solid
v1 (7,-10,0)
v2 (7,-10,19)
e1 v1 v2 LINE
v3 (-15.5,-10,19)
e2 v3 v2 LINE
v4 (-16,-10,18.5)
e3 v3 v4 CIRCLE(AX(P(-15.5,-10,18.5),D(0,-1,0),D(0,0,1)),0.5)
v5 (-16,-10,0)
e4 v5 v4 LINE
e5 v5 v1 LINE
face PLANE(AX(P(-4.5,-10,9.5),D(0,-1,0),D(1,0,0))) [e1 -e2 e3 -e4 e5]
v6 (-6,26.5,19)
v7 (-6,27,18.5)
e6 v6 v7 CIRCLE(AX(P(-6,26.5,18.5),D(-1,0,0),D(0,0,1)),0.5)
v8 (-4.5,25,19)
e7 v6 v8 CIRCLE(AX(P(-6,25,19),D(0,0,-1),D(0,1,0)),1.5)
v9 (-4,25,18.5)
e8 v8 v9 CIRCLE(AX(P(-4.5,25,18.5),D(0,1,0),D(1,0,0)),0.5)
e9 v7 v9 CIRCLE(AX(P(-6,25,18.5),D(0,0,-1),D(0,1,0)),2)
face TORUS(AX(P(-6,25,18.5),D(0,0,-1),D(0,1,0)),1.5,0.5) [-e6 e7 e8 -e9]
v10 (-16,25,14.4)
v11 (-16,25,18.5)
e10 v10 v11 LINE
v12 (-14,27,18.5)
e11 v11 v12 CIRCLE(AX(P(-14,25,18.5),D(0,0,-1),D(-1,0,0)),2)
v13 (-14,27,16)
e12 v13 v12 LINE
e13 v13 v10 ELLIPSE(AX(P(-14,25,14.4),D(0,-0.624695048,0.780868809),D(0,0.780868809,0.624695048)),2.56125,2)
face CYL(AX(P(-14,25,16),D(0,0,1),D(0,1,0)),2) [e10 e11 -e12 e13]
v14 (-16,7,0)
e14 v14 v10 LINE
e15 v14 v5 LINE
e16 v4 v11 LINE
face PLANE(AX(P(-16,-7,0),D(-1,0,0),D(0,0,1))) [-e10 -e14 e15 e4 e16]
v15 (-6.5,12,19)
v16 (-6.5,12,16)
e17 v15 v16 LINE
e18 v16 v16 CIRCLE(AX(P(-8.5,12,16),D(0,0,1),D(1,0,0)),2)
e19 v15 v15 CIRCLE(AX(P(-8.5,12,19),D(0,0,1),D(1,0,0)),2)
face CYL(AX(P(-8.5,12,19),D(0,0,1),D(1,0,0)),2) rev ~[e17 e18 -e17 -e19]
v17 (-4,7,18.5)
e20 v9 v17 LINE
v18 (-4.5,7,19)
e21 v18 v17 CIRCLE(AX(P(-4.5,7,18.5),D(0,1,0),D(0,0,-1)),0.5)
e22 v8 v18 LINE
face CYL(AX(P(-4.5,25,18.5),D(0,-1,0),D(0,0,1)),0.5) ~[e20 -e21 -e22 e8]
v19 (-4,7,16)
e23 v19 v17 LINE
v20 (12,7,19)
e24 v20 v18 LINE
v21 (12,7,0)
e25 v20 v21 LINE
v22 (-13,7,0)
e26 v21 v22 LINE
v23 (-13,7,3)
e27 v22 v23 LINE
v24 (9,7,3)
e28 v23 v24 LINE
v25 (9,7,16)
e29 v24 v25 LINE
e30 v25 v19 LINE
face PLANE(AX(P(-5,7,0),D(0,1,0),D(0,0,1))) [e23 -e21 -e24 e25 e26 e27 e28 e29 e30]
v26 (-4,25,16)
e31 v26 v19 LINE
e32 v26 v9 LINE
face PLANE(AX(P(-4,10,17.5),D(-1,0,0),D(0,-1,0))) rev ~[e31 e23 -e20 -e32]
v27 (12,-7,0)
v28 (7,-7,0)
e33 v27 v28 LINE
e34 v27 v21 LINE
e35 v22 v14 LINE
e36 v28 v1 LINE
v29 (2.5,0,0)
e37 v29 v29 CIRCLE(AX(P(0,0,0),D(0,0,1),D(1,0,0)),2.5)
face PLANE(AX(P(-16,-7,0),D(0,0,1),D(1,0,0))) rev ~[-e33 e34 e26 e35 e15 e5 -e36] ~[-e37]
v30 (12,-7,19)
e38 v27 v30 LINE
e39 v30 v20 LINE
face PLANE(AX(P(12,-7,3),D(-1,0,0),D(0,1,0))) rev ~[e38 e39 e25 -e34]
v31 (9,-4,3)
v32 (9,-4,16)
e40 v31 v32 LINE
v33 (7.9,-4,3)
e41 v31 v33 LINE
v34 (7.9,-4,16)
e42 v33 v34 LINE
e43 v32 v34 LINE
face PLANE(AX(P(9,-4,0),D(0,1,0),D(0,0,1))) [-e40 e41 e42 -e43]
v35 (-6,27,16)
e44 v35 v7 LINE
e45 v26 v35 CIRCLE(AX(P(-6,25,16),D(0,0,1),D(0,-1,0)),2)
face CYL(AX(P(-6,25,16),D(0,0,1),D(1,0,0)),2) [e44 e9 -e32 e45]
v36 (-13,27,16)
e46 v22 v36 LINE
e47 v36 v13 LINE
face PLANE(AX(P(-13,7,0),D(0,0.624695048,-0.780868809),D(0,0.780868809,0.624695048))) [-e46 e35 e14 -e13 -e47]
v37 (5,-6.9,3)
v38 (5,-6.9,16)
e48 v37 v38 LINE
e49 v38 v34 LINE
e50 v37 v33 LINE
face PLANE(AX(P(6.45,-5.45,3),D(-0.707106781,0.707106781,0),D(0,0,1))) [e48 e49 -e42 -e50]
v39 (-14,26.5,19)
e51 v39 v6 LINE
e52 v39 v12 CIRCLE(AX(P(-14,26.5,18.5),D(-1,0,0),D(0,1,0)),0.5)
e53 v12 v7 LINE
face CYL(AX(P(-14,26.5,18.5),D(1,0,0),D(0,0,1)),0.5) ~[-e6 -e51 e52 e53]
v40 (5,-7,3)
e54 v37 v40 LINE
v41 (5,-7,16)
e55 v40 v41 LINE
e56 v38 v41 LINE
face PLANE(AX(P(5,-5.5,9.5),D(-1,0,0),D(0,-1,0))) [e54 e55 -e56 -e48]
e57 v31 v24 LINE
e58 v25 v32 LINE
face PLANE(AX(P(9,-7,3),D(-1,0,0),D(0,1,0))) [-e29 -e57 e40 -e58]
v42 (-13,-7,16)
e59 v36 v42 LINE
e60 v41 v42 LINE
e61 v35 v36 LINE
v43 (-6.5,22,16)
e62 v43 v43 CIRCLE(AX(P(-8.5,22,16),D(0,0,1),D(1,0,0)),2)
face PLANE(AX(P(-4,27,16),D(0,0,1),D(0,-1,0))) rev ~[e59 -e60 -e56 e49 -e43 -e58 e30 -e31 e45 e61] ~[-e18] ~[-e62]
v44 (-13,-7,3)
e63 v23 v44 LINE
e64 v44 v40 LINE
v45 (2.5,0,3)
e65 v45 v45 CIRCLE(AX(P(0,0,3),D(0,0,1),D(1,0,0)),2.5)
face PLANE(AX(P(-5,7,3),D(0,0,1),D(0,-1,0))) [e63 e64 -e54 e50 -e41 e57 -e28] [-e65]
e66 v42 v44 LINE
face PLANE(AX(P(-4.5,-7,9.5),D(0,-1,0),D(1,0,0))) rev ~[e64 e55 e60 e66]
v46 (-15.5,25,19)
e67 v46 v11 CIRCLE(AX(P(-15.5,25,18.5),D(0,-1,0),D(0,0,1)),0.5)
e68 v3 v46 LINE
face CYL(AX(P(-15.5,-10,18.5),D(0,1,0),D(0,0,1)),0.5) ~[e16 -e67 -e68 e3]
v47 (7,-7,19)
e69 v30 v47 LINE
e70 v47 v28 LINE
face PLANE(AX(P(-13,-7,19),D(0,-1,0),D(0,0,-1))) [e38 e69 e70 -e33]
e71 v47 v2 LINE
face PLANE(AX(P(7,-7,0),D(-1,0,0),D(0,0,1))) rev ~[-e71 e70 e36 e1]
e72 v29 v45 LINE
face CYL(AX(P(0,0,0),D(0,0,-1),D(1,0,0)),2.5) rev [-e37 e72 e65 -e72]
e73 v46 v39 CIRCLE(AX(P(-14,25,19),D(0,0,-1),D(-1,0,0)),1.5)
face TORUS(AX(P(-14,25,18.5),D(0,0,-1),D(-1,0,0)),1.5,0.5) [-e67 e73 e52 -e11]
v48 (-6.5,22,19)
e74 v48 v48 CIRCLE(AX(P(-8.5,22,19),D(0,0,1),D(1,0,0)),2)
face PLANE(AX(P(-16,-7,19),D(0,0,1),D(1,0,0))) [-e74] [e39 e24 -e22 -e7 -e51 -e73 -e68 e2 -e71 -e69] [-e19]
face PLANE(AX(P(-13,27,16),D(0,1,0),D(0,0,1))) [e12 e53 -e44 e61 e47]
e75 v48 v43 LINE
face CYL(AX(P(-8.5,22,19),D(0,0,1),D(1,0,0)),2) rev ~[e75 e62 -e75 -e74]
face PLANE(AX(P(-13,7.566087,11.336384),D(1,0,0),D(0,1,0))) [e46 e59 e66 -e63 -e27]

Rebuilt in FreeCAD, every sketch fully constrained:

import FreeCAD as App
import Part
import Sketcher


def edges_at(feature, points):
    """Names of the edges that pass closest to the given points."""
    edges = feature.Shape.Edges
    near = lambda p: min(range(len(edges)), key=lambda i: edges[i].distToShape(Part.Vertex(*p))[0])
    return sorted({f"Edge{near(p) + 1}" for p in points})


def add_polygon(sketch, points):
    """Adds a closed chain of lines whose ends are joined by coincident constraints."""
    first, n = sketch.GeometryCount, len(points)
    for a, b in zip(points, points[1:] + points[:1]):
        sketch.addGeometry(Part.LineSegment(App.Vector(*a, 0), App.Vector(*b, 0)), False)
    for i in range(n):
        sketch.addConstraint(Sketcher.Constraint("Coincident", first + i, 2, first + (i + 1) % n, 1))

doc = App.newDocument("Part")
params = doc.addObject("Spreadsheet::Sheet", "Params")
for row, (alias, value) in enumerate([
    ("sketch1_diameter", "5 mm"),
    ("sketch1_width", "17 mm"),
    ("sketch1_height", "14 mm"),
    ("pad1_length", "3 mm"),
    ("sketch2_width", "3 mm"),
    ("sketch2_height", "14 mm"),
    ("pad2_length", "16 mm"),
    ("sketch3_width", "14 mm"),
    ("sketch3_height", "3 mm"),
    ("pad3_length", "13 mm"),
    ("sketch4_width", "34 mm"),
    ("sketch4_height", "3 mm"),
    ("pad4_length", "9 mm"),
    ("sketch5_width", "14 mm"),
    ("sketch5_height", "3 mm"),
    ("pad5_length", "8 mm"),
    ("sketch6_diameter", "4 mm"),
    ("sketch7_width", "34 mm"),
    ("sketch7_width2", "14 mm"),
    ("sketch7_height", "3 mm"),
    ("sketch7_height2", "19 mm"),
    ("pad6_length", "3 mm"),
    ("sketch8_width", "23 mm"),
    ("sketch8_height", "19 mm"),
    ("pad7_length", "3 mm"),
    ("sketch9_width", "3 mm"),
    ("sketch9_height", "19 mm"),
    ("pad8_length", "4 mm"),
    ("chamfer_size", "2.9 mm"),
    ("fillet_radius", "2 mm"),
    ("fillet2_radius", "2 mm"),
    ("fillet3_radius", "0.5 mm"),
], start=1):
    params.set(f"A{row}", alias)
    params.set(f"B{row}", "=" + value)
    params.setAlias(f"B{row}", alias)

body = doc.addObject("PartDesign::Body", "Body")

# Sketch on XY plane
sketch1 = doc.addObject("Sketcher::SketchObject", "Sketch")
body.addObject(sketch1)
sketch1.AttachmentSupport = (doc.XY_Plane, [""])
sketch1.MapMode = "FlatFace"
add_polygon(sketch1, [(-5, 7), (-5, -7), (12, -7), (12, 7)])  # lines 0-3
sketch1.addGeometry(Part.Circle(App.Vector(0, 0, 0), App.Vector(0, 0, 1), 2.5), False)  # 4
sketch1.addConstraint(Sketcher.Constraint("Vertical", 0))
sketch1.addConstraint(Sketcher.Constraint("Horizontal", 1))
sketch1.addConstraint(Sketcher.Constraint("Vertical", 2))
sketch1.addConstraint(Sketcher.Constraint("Horizontal", 3))
sketch1.addConstraint(Sketcher.Constraint("Coincident", 4, 3, -1, 1))
sketch1.addConstraint(Sketcher.Constraint("Diameter", 4, 5.0))
sketch1.addConstraint(Sketcher.Constraint("DistanceX", 1, 1, 1, 2, 17.0))
sketch1.addConstraint(Sketcher.Constraint("DistanceY", 0, 2, 0, 1, 14.0))
sketch1.addConstraint(Sketcher.Constraint("DistanceX", 0, 2, -1, 1, 5.0))
sketch1.addConstraint(Sketcher.Constraint("DistanceY", 0, 2, -1, 1, 7.0))
sketch1.setExpression("Constraints[9]", "Params.sketch1_diameter")
sketch1.setExpression("Constraints[10]", "Params.sketch1_width")
sketch1.setExpression("Constraints[11]", "Params.sketch1_height")
pad1 = doc.addObject("PartDesign::Pad", "Pad")
body.addObject(pad1)
pad1.Profile = sketch1
pad1.setExpression("Length", "Params.pad1_length")

# Sketch on XY plane
sketch2 = doc.addObject("Sketcher::SketchObject", "Sketch001")
body.addObject(sketch2)
sketch2.AttachmentSupport = (doc.XY_Plane, [""])
sketch2.MapMode = "FlatFace"
sketch2.AttachmentOffset = App.Placement(App.Vector(0, 0, 3), App.Rotation())
add_polygon(sketch2, [(9, 7), (9, -7), (12, -7), (12, 7)])  # lines 0-3
sketch2.addConstraint(Sketcher.Constraint("Vertical", 0))
sketch2.addConstraint(Sketcher.Constraint("Horizontal", 1))
sketch2.addConstraint(Sketcher.Constraint("Vertical", 2))
sketch2.addConstraint(Sketcher.Constraint("Horizontal", 3))
sketch2.addConstraint(Sketcher.Constraint("DistanceX", 1, 1, 1, 2, 3.0))
sketch2.addConstraint(Sketcher.Constraint("DistanceY", 0, 2, 0, 1, 14.0))
sketch2.addConstraint(Sketcher.Constraint("DistanceX", -1, 1, 0, 2, 9.0))
sketch2.addConstraint(Sketcher.Constraint("DistanceY", 0, 2, -1, 1, 7.0))
sketch2.setExpression("Constraints[8]", "Params.sketch2_width")
sketch2.setExpression("Constraints[9]", "Params.sketch2_height")
pad2 = doc.addObject("PartDesign::Pad", "Pad001")
body.addObject(pad2)
pad2.Profile = sketch2
pad2.setExpression("Length", "Params.pad2_length")

# Sketch on YZ plane
sketch3 = doc.addObject("Sketcher::SketchObject", "Sketch002")
body.addObject(sketch3)
sketch3.AttachmentSupport = (doc.YZ_Plane, [""])
sketch3.MapMode = "FlatFace"
sketch3.AttachmentOffset = App.Placement(App.Vector(0, 0, 9), App.Rotation())
add_polygon(sketch3, [(7, 19), (7, 16), (-7, 16), (-7, 19)])  # lines 0-3
sketch3.addConstraint(Sketcher.Constraint("Vertical", 0))
sketch3.addConstraint(Sketcher.Constraint("Horizontal", 1))
sketch3.addConstraint(Sketcher.Constraint("Vertical", 2))
sketch3.addConstraint(Sketcher.Constraint("Horizontal", 3))
sketch3.addConstraint(Sketcher.Constraint("DistanceX", 1, 2, 1, 1, 14.0))
sketch3.addConstraint(Sketcher.Constraint("DistanceY", 0, 2, 0, 1, 3.0))
sketch3.addConstraint(Sketcher.Constraint("DistanceX", -1, 1, 0, 2, 7.0))
sketch3.addConstraint(Sketcher.Constraint("DistanceY", -1, 1, 0, 2, 16.0))
sketch3.setExpression("Constraints[8]", "Params.sketch3_width")
sketch3.setExpression("Constraints[9]", "Params.sketch3_height")
pad3 = doc.addObject("PartDesign::Pad", "Pad002")
body.addObject(pad3)
pad3.Profile = sketch3
pad3.setExpression("Length", "Params.pad3_length")
pad3.Reversed = True

# Sketch on YZ plane
sketch4 = doc.addObject("Sketcher::SketchObject", "Sketch003")
body.addObject(sketch4)
sketch4.AttachmentSupport = (doc.YZ_Plane, [""])
sketch4.MapMode = "FlatFace"
sketch4.AttachmentOffset = App.Placement(App.Vector(0, 0, -4), App.Rotation())
add_polygon(sketch4, [(27, 19), (27, 16), (-7, 16), (-7, 19)])  # lines 0-3
sketch4.addConstraint(Sketcher.Constraint("Vertical", 0))
sketch4.addConstraint(Sketcher.Constraint("Horizontal", 1))
sketch4.addConstraint(Sketcher.Constraint("Vertical", 2))
sketch4.addConstraint(Sketcher.Constraint("Horizontal", 3))
sketch4.addConstraint(Sketcher.Constraint("DistanceX", 1, 2, 1, 1, 34.0))
sketch4.addConstraint(Sketcher.Constraint("DistanceY", 0, 2, 0, 1, 3.0))
sketch4.addConstraint(Sketcher.Constraint("DistanceX", -1, 1, 0, 2, 27.0))
sketch4.addConstraint(Sketcher.Constraint("DistanceY", -1, 1, 0, 2, 16.0))
sketch4.setExpression("Constraints[8]", "Params.sketch4_width")
sketch4.setExpression("Constraints[9]", "Params.sketch4_height")
pad4 = doc.addObject("PartDesign::Pad", "Pad003")
body.addObject(pad4)
pad4.Profile = sketch4
pad4.setExpression("Length", "Params.pad4_length")
pad4.Reversed = True

# Sketch on YZ plane
sketch5 = doc.addObject("Sketcher::SketchObject", "Sketch004")
body.addObject(sketch5)
sketch5.AttachmentSupport = (doc.YZ_Plane, [""])
sketch5.MapMode = "FlatFace"
sketch5.AttachmentOffset = App.Placement(App.Vector(0, 0, -5), App.Rotation())
add_polygon(sketch5, [(7, 3), (7, 0), (-7, 0), (-7, 3)])  # lines 0-3
sketch5.addConstraint(Sketcher.Constraint("Vertical", 0))
sketch5.addConstraint(Sketcher.Constraint("Horizontal", 1))
sketch5.addConstraint(Sketcher.Constraint("Vertical", 2))
sketch5.addConstraint(Sketcher.Constraint("Horizontal", 3))
sketch5.addConstraint(Sketcher.Constraint("Symmetric", 0, 2, 1, 2, -1, 1))
sketch5.addConstraint(Sketcher.Constraint("DistanceX", 1, 2, 1, 1, 14.0))
sketch5.addConstraint(Sketcher.Constraint("DistanceY", 0, 2, 0, 1, 3.0))
sketch5.setExpression("Constraints[9]", "Params.sketch5_width")
sketch5.setExpression("Constraints[10]", "Params.sketch5_height")
pad5 = doc.addObject("PartDesign::Pad", "Pad004")
body.addObject(pad5)
pad5.Profile = sketch5
pad5.setExpression("Length", "Params.pad5_length")
pad5.Reversed = True

# Sketch on XY plane
sketch6 = doc.addObject("Sketcher::SketchObject", "Sketch005")
body.addObject(sketch6)
sketch6.AttachmentSupport = (doc.XY_Plane, [""])
sketch6.MapMode = "FlatFace"
sketch6.AttachmentOffset = App.Placement(App.Vector(0, 0, 19), App.Rotation())
sketch6.addGeometry(Part.Circle(App.Vector(-8.5, 22, 0), App.Vector(0, 0, 1), 2), False)
sketch6.addGeometry(Part.Circle(App.Vector(-8.5, 12, 0), App.Vector(0, 0, 1), 2), False)
sketch6.addConstraint(Sketcher.Constraint("Equal", 0, 1))
sketch6.addConstraint(Sketcher.Constraint("Vertical", 0, 3, 1, 3))
sketch6.addConstraint(Sketcher.Constraint("Diameter", 0, 4.0))
sketch6.addConstraint(Sketcher.Constraint("DistanceY", -1, 1, 0, 3, 22.0))
sketch6.addConstraint(Sketcher.Constraint("DistanceY", -1, 1, 1, 3, 12.0))
sketch6.addConstraint(Sketcher.Constraint("DistanceX", 0, 3, -1, 1, 8.5))
sketch6.setExpression("Constraints[2]", "Params.sketch6_diameter")
pocket1 = doc.addObject("PartDesign::Pocket", "Pocket")
body.addObject(pocket1)
pocket1.Profile = sketch6
pocket1.Type = "ThroughAll"

# Sketch on YZ plane
sketch7 = doc.addObject("Sketcher::SketchObject", "Sketch006")
body.addObject(sketch7)
sketch7.AttachmentSupport = (doc.YZ_Plane, [""])
sketch7.MapMode = "FlatFace"
sketch7.AttachmentOffset = App.Placement(App.Vector(0, 0, -13), App.Rotation())
add_polygon(sketch7, [(-7, 19), (27, 19), (27, 16), (7, 0), (-7, 0)])  # lines 0-4
sketch7.addConstraint(Sketcher.Constraint("Horizontal", 0))
sketch7.addConstraint(Sketcher.Constraint("Vertical", 1))
sketch7.addConstraint(Sketcher.Constraint("Horizontal", 3))
sketch7.addConstraint(Sketcher.Constraint("Vertical", 4))
sketch7.addConstraint(Sketcher.Constraint("Symmetric", 2, 2, 3, 2, -1, 1))
sketch7.addConstraint(Sketcher.Constraint("DistanceX", 0, 1, 0, 2, 34.0))
sketch7.addConstraint(Sketcher.Constraint("DistanceX", 3, 2, 3, 1, 14.0))
sketch7.addConstraint(Sketcher.Constraint("DistanceY", 1, 2, 1, 1, 3.0))
sketch7.addConstraint(Sketcher.Constraint("DistanceY", 4, 1, 4, 2, 19.0))
sketch7.setExpression("Constraints[10]", "Params.sketch7_width")
sketch7.setExpression("Constraints[11]", "Params.sketch7_width2")
sketch7.setExpression("Constraints[12]", "Params.sketch7_height")
sketch7.setExpression("Constraints[13]", "Params.sketch7_height2")
pad6 = doc.addObject("PartDesign::Pad", "Pad005")
body.addObject(pad6)
pad6.Profile = sketch7
pad6.setExpression("Length", "Params.pad6_length")
pad6.Reversed = True

# Sketch on XZ plane
sketch8 = doc.addObject("Sketcher::SketchObject", "Sketch007")
body.addObject(sketch8)
sketch8.AttachmentSupport = (doc.XZ_Plane, [""])
sketch8.MapMode = "FlatFace"
sketch8.AttachmentOffset = App.Placement(App.Vector(0, 0, 7), App.Rotation())
add_polygon(sketch8, [(-16, 19), (-16, 0), (7, 0), (7, 19)])  # lines 0-3
sketch8.addConstraint(Sketcher.Constraint("Vertical", 0))
sketch8.addConstraint(Sketcher.Constraint("Horizontal", 1))
sketch8.addConstraint(Sketcher.Constraint("Vertical", 2))
sketch8.addConstraint(Sketcher.Constraint("Horizontal", 3))
sketch8.addConstraint(Sketcher.Constraint("PointOnObject", 0, 2, -1))
sketch8.addConstraint(Sketcher.Constraint("DistanceX", 1, 1, 1, 2, 23.0))
sketch8.addConstraint(Sketcher.Constraint("DistanceY", 0, 2, 0, 1, 19.0))
sketch8.addConstraint(Sketcher.Constraint("DistanceX", 0, 2, -1, 1, 16.0))
sketch8.setExpression("Constraints[9]", "Params.sketch8_width")
sketch8.setExpression("Constraints[10]", "Params.sketch8_height")
pad7 = doc.addObject("PartDesign::Pad", "Pad006")
body.addObject(pad7)
pad7.Profile = sketch8
pad7.setExpression("Length", "Params.pad7_length")

# Sketch on YZ plane
sketch9 = doc.addObject("Sketcher::SketchObject", "Sketch008")
body.addObject(sketch9)
sketch9.AttachmentSupport = (doc.YZ_Plane, [""])
sketch9.MapMode = "FlatFace"
sketch9.AttachmentOffset = App.Placement(App.Vector(0, 0, 9), App.Rotation())
add_polygon(sketch9, [(-4, 19), (-4, 0), (-7, 0), (-7, 19)])  # lines 0-3
sketch9.addConstraint(Sketcher.Constraint("Vertical", 0))
sketch9.addConstraint(Sketcher.Constraint("Horizontal", 1))
sketch9.addConstraint(Sketcher.Constraint("Vertical", 2))
sketch9.addConstraint(Sketcher.Constraint("Horizontal", 3))
sketch9.addConstraint(Sketcher.Constraint("PointOnObject", 0, 2, -1))
sketch9.addConstraint(Sketcher.Constraint("DistanceX", 1, 2, 1, 1, 3.0))
sketch9.addConstraint(Sketcher.Constraint("DistanceY", 0, 2, 0, 1, 19.0))
sketch9.addConstraint(Sketcher.Constraint("DistanceX", 0, 2, -1, 1, 4.0))
sketch9.setExpression("Constraints[9]", "Params.sketch9_width")
sketch9.setExpression("Constraints[10]", "Params.sketch9_height")
pad8 = doc.addObject("PartDesign::Pad", "Pad007")
body.addObject(pad8)
pad8.Profile = sketch9
pad8.setExpression("Length", "Params.pad8_length")
pad8.Reversed = True
doc.recompute()

chamfer = doc.addObject("PartDesign::Chamfer", "Chamfer")
body.addObject(chamfer)
chamfer.Base = (pad8, edges_at(pad8, [(5, -4, 9.5)]))
chamfer.setExpression("Size", "Params.chamfer_size")
doc.recompute()

fillet = doc.addObject("PartDesign::Fillet", "Fillet")
body.addObject(fillet)
fillet.Base = (chamfer, edges_at(chamfer, [(-4, 27, 17.5)]))
fillet.setExpression("Radius", "Params.fillet_radius")
doc.recompute()

fillet2 = doc.addObject("PartDesign::Fillet", "Fillet001")
body.addObject(fillet2)
fillet2.Base = (fillet, edges_at(fillet, [(-16, 27, 17.5)]))
fillet2.setExpression("Radius", "Params.fillet2_radius")
doc.recompute()

fillet3 = doc.addObject("PartDesign::Fillet", "Fillet002")
body.addObject(fillet3)
fillet3.Base = (fillet2, edges_at(fillet2, [(-16, 7.5, 19)]))
fillet3.setExpression("Radius", "Params.fillet3_radius")

doc.recompute()
